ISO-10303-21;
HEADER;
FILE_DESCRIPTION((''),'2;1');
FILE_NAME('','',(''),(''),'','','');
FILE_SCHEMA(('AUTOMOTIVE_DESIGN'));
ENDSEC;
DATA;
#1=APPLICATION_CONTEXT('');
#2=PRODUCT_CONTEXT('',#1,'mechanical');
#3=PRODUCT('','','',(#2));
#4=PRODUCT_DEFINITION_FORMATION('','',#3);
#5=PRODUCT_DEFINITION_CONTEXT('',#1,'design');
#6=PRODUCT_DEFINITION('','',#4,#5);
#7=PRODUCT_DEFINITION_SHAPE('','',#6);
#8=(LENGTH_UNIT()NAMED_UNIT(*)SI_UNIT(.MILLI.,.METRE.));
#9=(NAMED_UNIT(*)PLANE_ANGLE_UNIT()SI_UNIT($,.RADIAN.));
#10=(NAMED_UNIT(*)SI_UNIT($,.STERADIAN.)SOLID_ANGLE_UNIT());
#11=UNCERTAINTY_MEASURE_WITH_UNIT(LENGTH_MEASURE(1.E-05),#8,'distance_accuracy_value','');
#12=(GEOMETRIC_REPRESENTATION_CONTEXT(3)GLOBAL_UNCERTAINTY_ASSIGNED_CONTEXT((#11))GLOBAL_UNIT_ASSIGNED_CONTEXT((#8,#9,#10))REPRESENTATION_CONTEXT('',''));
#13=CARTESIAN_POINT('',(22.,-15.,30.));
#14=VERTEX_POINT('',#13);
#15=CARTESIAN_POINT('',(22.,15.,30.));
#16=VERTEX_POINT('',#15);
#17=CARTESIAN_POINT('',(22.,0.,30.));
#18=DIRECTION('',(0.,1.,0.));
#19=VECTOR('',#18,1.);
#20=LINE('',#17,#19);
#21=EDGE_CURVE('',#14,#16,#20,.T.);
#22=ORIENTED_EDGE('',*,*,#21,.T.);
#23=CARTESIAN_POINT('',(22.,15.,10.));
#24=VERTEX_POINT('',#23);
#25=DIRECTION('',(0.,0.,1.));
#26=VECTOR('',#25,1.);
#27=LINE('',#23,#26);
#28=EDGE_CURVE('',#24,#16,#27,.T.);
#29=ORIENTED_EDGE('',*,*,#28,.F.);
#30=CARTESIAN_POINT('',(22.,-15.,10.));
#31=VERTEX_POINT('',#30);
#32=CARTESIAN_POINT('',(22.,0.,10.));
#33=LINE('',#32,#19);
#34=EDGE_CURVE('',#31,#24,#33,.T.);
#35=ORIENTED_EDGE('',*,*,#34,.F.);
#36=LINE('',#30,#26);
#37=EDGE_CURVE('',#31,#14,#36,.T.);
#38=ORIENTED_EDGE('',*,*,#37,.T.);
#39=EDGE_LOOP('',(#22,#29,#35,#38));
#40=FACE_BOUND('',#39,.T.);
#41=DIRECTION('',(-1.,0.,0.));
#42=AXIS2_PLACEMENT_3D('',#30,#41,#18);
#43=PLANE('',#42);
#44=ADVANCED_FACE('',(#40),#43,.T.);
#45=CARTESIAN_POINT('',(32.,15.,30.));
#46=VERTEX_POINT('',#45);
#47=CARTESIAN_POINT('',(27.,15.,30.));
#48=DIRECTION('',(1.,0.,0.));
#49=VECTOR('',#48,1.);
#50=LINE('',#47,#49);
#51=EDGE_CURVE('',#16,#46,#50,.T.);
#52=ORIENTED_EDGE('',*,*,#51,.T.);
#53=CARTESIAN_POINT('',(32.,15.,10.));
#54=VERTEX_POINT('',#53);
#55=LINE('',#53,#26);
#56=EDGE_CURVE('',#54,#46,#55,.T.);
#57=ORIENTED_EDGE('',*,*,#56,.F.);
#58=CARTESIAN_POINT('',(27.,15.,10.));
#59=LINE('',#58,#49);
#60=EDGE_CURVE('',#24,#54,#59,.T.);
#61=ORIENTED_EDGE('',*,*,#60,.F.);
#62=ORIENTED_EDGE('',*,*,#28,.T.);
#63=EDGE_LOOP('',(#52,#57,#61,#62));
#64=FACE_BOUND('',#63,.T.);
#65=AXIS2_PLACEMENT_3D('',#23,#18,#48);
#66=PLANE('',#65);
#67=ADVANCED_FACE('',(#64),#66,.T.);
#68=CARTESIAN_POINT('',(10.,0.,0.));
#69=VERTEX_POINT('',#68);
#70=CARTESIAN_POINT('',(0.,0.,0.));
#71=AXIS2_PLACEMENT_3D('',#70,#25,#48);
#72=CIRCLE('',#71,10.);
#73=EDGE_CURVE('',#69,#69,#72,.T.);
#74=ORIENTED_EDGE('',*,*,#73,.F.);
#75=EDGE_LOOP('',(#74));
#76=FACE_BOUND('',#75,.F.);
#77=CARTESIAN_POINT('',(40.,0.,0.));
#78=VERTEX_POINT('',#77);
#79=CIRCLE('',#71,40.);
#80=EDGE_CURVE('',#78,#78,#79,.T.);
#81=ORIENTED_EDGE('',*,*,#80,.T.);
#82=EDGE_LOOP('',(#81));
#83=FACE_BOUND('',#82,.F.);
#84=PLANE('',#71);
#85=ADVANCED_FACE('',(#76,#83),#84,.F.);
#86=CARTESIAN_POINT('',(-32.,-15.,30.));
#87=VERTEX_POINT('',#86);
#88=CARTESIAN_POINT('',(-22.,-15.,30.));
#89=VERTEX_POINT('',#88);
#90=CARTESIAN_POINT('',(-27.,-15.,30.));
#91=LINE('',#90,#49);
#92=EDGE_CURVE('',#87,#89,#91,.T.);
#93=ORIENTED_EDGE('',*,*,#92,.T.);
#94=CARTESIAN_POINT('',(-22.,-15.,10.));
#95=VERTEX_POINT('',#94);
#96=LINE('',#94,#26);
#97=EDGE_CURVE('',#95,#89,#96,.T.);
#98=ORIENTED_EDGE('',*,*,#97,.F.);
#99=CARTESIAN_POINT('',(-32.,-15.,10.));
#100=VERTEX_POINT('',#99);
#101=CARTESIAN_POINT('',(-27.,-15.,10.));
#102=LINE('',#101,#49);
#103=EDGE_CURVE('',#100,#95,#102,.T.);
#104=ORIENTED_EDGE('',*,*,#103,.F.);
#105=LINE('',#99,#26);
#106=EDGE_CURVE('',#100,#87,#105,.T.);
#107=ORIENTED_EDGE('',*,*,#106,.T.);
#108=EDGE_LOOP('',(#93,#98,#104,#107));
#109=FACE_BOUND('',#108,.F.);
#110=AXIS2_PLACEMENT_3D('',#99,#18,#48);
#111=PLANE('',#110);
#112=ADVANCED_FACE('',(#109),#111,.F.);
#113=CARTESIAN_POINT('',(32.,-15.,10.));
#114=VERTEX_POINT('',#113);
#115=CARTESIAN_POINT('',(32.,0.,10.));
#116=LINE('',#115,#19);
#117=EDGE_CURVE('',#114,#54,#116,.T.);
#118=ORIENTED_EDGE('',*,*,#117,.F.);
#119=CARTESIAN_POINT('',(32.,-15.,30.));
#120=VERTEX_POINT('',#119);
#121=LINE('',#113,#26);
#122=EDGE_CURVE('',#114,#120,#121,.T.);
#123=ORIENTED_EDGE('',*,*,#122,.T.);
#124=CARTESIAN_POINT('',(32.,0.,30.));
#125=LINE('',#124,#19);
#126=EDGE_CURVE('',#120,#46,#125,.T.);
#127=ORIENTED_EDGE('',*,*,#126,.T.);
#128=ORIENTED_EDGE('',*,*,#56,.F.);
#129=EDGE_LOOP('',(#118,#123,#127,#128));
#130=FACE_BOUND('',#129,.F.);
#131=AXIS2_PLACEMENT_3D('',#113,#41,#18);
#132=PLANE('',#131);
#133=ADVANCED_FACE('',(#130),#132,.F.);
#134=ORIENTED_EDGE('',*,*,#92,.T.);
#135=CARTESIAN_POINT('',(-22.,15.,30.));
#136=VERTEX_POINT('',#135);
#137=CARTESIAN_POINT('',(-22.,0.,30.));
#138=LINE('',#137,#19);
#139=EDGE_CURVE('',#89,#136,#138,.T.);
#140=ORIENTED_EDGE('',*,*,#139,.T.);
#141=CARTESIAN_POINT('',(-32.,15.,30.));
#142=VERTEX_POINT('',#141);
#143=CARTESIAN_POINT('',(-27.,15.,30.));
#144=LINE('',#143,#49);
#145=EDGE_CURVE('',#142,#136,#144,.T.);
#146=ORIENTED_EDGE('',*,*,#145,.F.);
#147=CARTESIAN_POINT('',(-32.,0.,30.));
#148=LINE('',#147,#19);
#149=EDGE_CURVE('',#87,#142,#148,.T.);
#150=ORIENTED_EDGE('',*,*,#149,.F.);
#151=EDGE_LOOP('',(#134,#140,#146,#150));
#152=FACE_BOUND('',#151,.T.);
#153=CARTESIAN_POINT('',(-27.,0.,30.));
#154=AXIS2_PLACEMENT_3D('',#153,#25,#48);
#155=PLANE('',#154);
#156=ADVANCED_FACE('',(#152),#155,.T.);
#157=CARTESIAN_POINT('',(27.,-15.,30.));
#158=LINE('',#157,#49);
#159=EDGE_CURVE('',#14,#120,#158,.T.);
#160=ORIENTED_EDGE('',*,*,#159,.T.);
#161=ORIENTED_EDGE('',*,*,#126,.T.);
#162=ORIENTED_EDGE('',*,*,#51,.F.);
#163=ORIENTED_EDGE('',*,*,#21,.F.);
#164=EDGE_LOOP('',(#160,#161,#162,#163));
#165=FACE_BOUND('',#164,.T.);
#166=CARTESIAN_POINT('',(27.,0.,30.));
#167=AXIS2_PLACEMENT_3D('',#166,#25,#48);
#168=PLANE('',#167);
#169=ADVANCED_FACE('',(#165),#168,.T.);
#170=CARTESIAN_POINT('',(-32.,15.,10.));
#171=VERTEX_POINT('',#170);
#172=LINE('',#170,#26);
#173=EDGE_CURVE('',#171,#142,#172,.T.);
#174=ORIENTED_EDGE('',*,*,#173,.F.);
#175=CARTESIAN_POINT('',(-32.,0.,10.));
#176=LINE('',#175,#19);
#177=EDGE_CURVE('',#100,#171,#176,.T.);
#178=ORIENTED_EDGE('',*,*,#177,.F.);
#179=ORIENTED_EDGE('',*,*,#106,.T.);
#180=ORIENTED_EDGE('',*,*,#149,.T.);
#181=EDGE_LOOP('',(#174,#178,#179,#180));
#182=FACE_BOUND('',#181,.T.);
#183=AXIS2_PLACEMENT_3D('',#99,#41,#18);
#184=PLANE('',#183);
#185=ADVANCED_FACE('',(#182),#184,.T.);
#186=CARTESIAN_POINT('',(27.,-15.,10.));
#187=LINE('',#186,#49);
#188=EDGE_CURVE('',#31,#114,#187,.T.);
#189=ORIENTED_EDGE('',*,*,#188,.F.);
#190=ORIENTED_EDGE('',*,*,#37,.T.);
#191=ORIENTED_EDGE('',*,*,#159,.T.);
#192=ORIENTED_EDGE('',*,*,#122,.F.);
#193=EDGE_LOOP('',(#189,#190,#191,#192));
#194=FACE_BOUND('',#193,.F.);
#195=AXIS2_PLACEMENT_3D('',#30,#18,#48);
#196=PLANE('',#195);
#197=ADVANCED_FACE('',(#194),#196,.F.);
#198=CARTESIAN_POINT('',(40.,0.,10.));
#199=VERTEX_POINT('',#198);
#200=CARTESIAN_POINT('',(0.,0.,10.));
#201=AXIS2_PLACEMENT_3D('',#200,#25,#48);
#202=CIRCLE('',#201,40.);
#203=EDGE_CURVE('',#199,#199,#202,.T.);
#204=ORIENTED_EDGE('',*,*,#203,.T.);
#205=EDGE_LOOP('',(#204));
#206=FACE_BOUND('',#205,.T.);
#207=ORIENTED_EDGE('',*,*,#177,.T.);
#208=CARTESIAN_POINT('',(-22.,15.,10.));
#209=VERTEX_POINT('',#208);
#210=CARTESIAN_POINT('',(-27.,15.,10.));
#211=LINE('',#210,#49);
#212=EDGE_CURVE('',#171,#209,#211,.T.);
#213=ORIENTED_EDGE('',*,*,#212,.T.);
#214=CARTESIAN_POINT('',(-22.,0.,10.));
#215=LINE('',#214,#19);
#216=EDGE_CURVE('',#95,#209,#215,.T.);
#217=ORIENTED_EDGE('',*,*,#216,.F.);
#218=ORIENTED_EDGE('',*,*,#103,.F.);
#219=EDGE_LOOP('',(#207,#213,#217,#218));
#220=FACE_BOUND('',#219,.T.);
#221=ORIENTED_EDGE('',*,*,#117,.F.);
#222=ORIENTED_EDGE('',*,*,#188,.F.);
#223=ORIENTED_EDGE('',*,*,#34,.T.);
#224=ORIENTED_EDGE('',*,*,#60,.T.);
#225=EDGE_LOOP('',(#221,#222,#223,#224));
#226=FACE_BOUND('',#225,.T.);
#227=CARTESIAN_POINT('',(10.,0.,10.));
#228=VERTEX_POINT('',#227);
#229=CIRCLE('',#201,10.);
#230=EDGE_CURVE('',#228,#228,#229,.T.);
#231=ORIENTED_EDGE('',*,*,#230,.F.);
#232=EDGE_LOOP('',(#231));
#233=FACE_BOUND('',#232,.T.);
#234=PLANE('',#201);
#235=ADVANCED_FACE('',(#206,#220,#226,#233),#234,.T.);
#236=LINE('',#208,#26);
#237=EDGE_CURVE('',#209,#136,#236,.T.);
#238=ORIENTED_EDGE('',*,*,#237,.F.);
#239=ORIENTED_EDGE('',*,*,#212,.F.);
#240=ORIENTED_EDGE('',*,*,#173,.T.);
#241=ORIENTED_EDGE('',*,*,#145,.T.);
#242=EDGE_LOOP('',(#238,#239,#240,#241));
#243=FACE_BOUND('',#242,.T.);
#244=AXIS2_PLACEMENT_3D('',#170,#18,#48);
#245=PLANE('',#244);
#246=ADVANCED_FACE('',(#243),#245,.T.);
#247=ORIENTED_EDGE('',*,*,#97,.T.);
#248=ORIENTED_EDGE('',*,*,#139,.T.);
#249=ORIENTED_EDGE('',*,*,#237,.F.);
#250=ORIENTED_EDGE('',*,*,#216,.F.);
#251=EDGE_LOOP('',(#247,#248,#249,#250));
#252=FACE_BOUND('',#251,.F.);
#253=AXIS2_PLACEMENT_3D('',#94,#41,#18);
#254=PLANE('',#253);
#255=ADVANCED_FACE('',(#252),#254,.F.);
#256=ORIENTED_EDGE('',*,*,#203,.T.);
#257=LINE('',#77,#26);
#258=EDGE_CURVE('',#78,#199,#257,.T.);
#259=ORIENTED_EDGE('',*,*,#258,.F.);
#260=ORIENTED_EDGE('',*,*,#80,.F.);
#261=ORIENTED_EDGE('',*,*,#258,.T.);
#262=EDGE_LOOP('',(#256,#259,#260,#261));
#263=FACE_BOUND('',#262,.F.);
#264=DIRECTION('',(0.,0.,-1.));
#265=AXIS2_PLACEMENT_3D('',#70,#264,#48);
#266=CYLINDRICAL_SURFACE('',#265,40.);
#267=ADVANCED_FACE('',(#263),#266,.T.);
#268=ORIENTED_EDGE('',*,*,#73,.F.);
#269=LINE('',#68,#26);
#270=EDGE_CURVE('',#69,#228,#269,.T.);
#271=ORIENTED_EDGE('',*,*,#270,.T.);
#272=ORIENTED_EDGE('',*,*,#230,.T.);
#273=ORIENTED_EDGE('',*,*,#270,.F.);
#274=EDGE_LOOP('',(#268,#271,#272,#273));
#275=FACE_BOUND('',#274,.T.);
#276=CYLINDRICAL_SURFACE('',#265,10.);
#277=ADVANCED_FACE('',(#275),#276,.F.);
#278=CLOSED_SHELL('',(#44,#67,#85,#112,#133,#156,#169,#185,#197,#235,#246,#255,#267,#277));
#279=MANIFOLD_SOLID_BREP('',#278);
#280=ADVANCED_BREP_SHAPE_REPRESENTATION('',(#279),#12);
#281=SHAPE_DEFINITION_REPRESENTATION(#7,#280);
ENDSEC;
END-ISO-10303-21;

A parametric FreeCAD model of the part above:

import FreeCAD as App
import Part
import Sketcher
from FreeCAD import Vector
Q = App.Units.Quantity


def add_polygon(sketch, points):
    """Adds a closed chain of lines whose ends are joined by coincident constraints."""
    first, n = sketch.GeometryCount, len(points)
    for a, b in zip(points, points[1:] + points[:1]):
        sketch.addGeometry(Part.LineSegment(App.Vector(*a, 0), App.Vector(*b, 0)), False)
    for i in range(n):
        sketch.addConstraint(Sketcher.Constraint("Coincident", first + i, 2, first + (i + 1) % n, 1))

doc = App.newDocument("Part")
params = doc.addObject("Spreadsheet::Sheet", "Params")
for row, (alias, value) in enumerate([
    ("sketch1_diameter", "80 mm"),
    ("sketch1_diameter2", "20 mm"),
    ("pad1_length", "10 mm"),
    ("sketch2_width", "10 mm"),
    ("sketch2_height", "30 mm"),
    ("pad2_length", "20 mm"),
], start=1):
    params.set(f"A{row}", alias)
    params.set(f"B{row}", "=" + value)
    params.setAlias(f"B{row}", alias)

body = doc.addObject("PartDesign::Body", "Body")

# Sketch on XY plane
sketch1 = doc.addObject("Sketcher::SketchObject", "Sketch")
body.addObject(sketch1)
sketch1.AttachmentSupport = (doc.XY_Plane, [""])
sketch1.MapMode = "FlatFace"
sketch1.addGeometry([
    Part.Circle(Vector(0, 0, 0), Vector(0, 0, 1), 40),
    Part.Circle(Vector(0, 0, 0), Vector(0, 0, 1), 10),
], False)
sketch1.addConstraint([
    Sketcher.Constraint("Coincident", 0, 3, -1, 1),
    Sketcher.Constraint("Coincident", 1, 3, -1, 1),
    Sketcher.Constraint("Diameter", 0, Q("80 mm")),
    Sketcher.Constraint("Diameter", 1, Q("20 mm")),
])
sketch1.setExpression("Constraints[2]", "Params.sketch1_diameter")
sketch1.setExpression("Constraints[3]", "Params.sketch1_diameter2")
pad1 = doc.addObject("PartDesign::Pad", "Pad")
body.addObject(pad1)
pad1.Profile = sketch1
pad1.setExpression("Length", "Params.pad1_length")

# Sketch on XY plane
sketch2 = doc.addObject("Sketcher::SketchObject", "Sketch001")
body.addObject(sketch2)
sketch2.AttachmentSupport = (doc.XY_Plane, [""])
sketch2.MapMode = "FlatFace"
sketch2.AttachmentOffset = App.Placement(Vector(0, 0, 10), App.Rotation())
add_polygon(sketch2, [(-32, 15), (-32, -15), (-22, -15), (-22, 15)])  # lines 0-3
add_polygon(sketch2, [(22, 15), (22, -15), (32, -15), (32, 15)])  # lines 4-7
sketch2.addConstraint([
    Sketcher.Constraint("Vertical", 0),
    Sketcher.Constraint("Horizontal", 1),
    Sketcher.Constraint("Vertical", 2),
    Sketcher.Constraint("Horizontal", 3),
    Sketcher.Constraint("Vertical", 4),
    Sketcher.Constraint("Horizontal", 5),
    Sketcher.Constraint("Vertical", 6),
    Sketcher.Constraint("Horizontal", 7),
    Sketcher.Constraint("Symmetric", 2, 2, 4, 2, -1, 1),
    Sketcher.Constraint("Symmetric", 0, 2, 6, 2, -1, 1),
    Sketcher.Constraint("Horizontal", 1, 2, 4, 2),
    Sketcher.Constraint("DistanceX", 1, 1, 1, 2, Q("10 mm")),
    Sketcher.Constraint("DistanceY", 0, 2, 0, 1, Q("30 mm")),
    Sketcher.Constraint("DistanceX", 0, 2, -1, 1, Q("32 mm")),
])
sketch2.setExpression("Constraints[19]", "Params.sketch2_width")
sketch2.setExpression("Constraints[20]", "Params.sketch2_height")
pad2 = doc.addObject("PartDesign::Pad", "Pad001")
body.addObject(pad2)
pad2.Profile = sketch2
pad2.setExpression("Length", "Params.pad2_length")

doc.recompute()
